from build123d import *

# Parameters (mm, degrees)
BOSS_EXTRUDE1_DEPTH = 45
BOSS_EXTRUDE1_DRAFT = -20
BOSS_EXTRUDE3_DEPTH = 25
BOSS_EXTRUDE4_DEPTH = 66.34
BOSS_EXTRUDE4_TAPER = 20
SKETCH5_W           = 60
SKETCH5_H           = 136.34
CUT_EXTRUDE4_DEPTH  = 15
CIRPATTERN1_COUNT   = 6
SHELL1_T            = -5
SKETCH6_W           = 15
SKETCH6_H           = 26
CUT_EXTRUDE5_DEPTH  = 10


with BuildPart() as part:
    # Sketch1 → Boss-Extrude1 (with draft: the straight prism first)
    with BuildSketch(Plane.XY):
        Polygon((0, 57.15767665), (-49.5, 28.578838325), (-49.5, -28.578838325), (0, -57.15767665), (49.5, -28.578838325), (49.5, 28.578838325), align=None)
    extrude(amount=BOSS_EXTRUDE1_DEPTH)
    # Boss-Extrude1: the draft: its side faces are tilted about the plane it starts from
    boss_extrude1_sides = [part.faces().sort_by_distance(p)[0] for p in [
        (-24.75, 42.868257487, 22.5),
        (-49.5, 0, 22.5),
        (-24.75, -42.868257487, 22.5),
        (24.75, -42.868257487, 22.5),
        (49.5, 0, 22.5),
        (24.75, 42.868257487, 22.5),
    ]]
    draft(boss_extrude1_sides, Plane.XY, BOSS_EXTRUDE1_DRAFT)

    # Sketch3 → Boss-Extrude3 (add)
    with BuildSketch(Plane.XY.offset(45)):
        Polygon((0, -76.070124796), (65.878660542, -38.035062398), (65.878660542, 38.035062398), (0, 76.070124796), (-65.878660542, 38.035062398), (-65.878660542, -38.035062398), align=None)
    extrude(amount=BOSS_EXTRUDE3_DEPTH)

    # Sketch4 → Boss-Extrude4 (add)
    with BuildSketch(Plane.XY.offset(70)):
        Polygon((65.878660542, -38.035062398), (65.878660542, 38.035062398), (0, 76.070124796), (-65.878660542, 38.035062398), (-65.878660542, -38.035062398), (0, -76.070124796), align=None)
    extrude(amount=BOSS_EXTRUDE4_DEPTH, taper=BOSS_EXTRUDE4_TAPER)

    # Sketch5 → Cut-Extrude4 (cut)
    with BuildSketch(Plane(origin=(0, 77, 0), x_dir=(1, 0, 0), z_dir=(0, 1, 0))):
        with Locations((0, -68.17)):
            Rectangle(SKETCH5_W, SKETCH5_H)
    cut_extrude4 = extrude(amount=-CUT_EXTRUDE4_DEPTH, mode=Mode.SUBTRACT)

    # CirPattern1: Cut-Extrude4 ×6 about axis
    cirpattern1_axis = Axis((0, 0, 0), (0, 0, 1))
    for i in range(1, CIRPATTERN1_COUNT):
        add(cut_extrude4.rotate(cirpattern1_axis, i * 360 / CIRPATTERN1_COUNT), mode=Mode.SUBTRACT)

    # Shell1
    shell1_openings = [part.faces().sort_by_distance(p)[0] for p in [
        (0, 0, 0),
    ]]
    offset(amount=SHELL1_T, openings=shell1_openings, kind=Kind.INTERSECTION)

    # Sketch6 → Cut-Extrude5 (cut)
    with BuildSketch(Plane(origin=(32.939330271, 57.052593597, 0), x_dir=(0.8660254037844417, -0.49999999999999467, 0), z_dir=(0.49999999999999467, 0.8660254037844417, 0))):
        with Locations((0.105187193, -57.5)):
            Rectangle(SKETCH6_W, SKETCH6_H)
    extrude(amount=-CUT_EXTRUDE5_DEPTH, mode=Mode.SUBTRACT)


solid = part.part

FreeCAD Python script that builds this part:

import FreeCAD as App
import Part
import Sketcher

V = App.Vector
Q = App.Units.Quantity


def faces_at(feature, points):
    """Names of the faces that lie closest to the given points."""
    faces = feature.Shape.Faces
    near = lambda p: min(range(len(faces)), key=lambda i: faces[i].distToShape(Part.Vertex(*p))[0])
    return sorted({f"Face{near(p) + 1}" for p in points})


def add_polygon(sketch, points):
    """Adds a closed chain of lines whose ends are joined by coincident constraints."""
    first, n = sketch.GeometryCount, len(points)
    for a, b in zip(points, points[1:] + points[:1]):
        sketch.addGeometry(Part.LineSegment(App.Vector(*a, 0), App.Vector(*b, 0)), False)
    for i in range(n):
        sketch.addConstraint(Sketcher.Constraint("Coincident", first + i, 2, first + (i + 1) % n, 1))

doc = App.newDocument("Part")
body = doc.addObject("PartDesign::Body", "Body")

sketch1 = body.newObject("Sketcher::SketchObject", "Sketch")
sketch1.AttachmentSupport = (doc.getObject("XY_Plane"), [""])
sketch1.MapMode = "FlatFace"
add_polygon(sketch1, [(0, 57.157677), (-49.5, 28.578838), (-49.5, -28.578838), (0, -57.157677), (49.5, -28.578838), (49.5, 28.578838)])
sketch1.addConstraint([
    Sketcher.Constraint("Vertical", 1),
    Sketcher.Constraint("Vertical", 4),
    Sketcher.Constraint("Symmetric", 0, 2, 3, 2, -1, 1),
    Sketcher.Constraint("Symmetric", 2, 2, 5, 2, -1, 1),
    Sketcher.Constraint("PointOnObject", 2, 2, -2),
    Sketcher.Constraint("Parallel", 2, 5),
    Sketcher.Constraint("Horizontal", 1, 2, 3, 2),
    Sketcher.Constraint("Angle", 0, Q("-150 deg")),
    Sketcher.Constraint("DistanceX", 1, 2, 3, 2, 99.0),
    Sketcher.Constraint("DistanceY", 1, 2, 1, 1, 57.157677),
])
pad1 = body.newObject("PartDesign::Pad", "Pad")
pad1.Profile = sketch1
pad1.Length = 45
doc.recompute()

draft = body.newObject("PartDesign::Draft", "Draft")
draft.Base = (pad1, faces_at(pad1, [
    (-24.75, 42.868, 22.5),
    (-49.5, 0, 22.5),
    (-24.75, -42.868, 22.5),
    (24.75, -42.868, 22.5),
    (49.5, 0, 22.5),
    (24.75, 42.868, 22.5),
]))
draft.NeutralPlane = (doc.getObject("XY_Plane"), [""])
draft.Angle = 20
draft.Reversed = True

sketch2 = body.newObject("Sketcher::SketchObject", "Sketch001")
sketch2.AttachmentSupport = (doc.getObject("XY_Plane"), [""])
sketch2.MapMode = "FlatFace"
sketch2.AttachmentOffset = App.Placement(V(0, 0, 45), App.Rotation())
add_polygon(sketch2, [(0, -76.070125), (65.878661, -38.035062), (65.878661, 38.035062), (0, 76.070125), (-65.878661, 38.035062), (-65.878661, -38.035062)])
sketch2.addConstraint([
    Sketcher.Constraint("Vertical", 1),
    Sketcher.Constraint("Vertical", 4),
    Sketcher.Constraint("Symmetric", 0, 2, 3, 2, -1, 1),
    Sketcher.Constraint("Symmetric", 2, 2, 5, 2, -1, 1),
    Sketcher.Constraint("PointOnObject", 2, 2, -2),
    Sketcher.Constraint("Parallel", 2, 5),
    Sketcher.Constraint("Horizontal", 1, 2, 3, 2),
    Sketcher.Constraint("Angle", 0, Q("30 deg")),
    Sketcher.Constraint("DistanceY", 1, 1, 1, 2, 76.070125),
    Sketcher.Constraint("DistanceX", -1, 1, 0, 2, 65.878661),
])
pad2 = body.newObject("PartDesign::Pad", "Pad001")
pad2.Profile = sketch2
pad2.Length = 25

sketch3 = body.newObject("Sketcher::SketchObject", "Sketch002")
sketch3.AttachmentSupport = (doc.getObject("XY_Plane"), [""])
sketch3.MapMode = "FlatFace"
sketch3.AttachmentOffset = App.Placement(V(0, 0, 70), App.Rotation())
add_polygon(sketch3, [(65.878661, -38.035062), (65.878661, 38.035062), (0, 76.070125), (-65.878661, 38.035062), (-65.878661, -38.035062), (0, -76.070125)])
sketch3.addConstraint([
    Sketcher.Constraint("Vertical", 0),
    Sketcher.Constraint("Vertical", 3),
    Sketcher.Constraint("Symmetric", 0, 2, 3, 2, -1, 1),
    Sketcher.Constraint("Symmetric", 1, 2, 4, 2, -1, 1),
    Sketcher.Constraint("PointOnObject", 1, 2, -2),
    Sketcher.Constraint("Parallel", 2, 5),
    Sketcher.Constraint("Horizontal", 0, 2, 2, 2),
    Sketcher.Constraint("Angle", 1, Q("150 deg")),
    Sketcher.Constraint("DistanceY", 0, 1, 0, 2, 76.070125),
    Sketcher.Constraint("DistanceX", -1, 1, 0, 2, 65.878661),
])
pad3 = body.newObject("PartDesign::Pad", "Pad002")
pad3.Profile = sketch3
pad3.Length = 66.34
pad3.TaperAngle = -20

sketch4 = body.newObject("Sketcher::SketchObject", "Sketch003")
sketch4.AttachmentSupport = (doc.getObject("XZ_Plane"), [""])
sketch4.MapMode = "FlatFace"
sketch4.AttachmentOffset = App.Placement(V(0, 0, -77), App.Rotation())
add_polygon(sketch4, [(-30, 0), (-30, 136.34), (30, 136.34), (30, 0)])
sketch4.addConstraint([
    Sketcher.Constraint("Vertical", 0),
    Sketcher.Constraint("Horizontal", 1),
    Sketcher.Constraint("Vertical", 2),
    Sketcher.Constraint("Horizontal", 3),
    Sketcher.Constraint("Symmetric", 2, 2, 3, 2, -1, 1),
    Sketcher.Constraint("DistanceX", 1, 1, 1, 2, 60.0),
    Sketcher.Constraint("DistanceY", 0, 1, 0, 2, 136.34),
])
pocket1 = body.newObject("PartDesign::Pocket", "Pocket")
pocket1.Profile = sketch4
pocket1.Length = 15
pocket1.Reversed = True
doc.recompute()

polarpattern = body.newObject("PartDesign::PolarPattern", "PolarPattern")
polarpattern.Originals = [pocket1]
polarpattern.Axis = (doc.getObject("Z_Axis"), [""])
polarpattern.Angle = 360
polarpattern.Occurrences = 6
body.Tip = polarpattern
doc.recompute()

thickness = body.newObject("PartDesign::Thickness", "Thickness")
thickness.Base = (polarpattern, faces_at(polarpattern, [(0, 0, 0)]))
thickness.Value = 5
thickness.Reversed = True
thickness.Join = "Intersection"

sketch5 = body.newObject("Sketcher::SketchObject", "Sketch004")
sketch5.Placement = App.Placement(V(32.93933, 57.052594, 0), App.Rotation(V(0.866025404, -0.5, 0), V(0, 0, -1), V(0.5, 0.866025404, 0), "ZXY"))
add_polygon(sketch5, [(-7.394813, -44.5), (-7.394813, -70.5), (7.605187, -70.5), (7.605187, -44.5)])
sketch5.addConstraint([
    Sketcher.Constraint("Vertical", 0),
    Sketcher.Constraint("Horizontal", 1),
    Sketcher.Constraint("Vertical", 2),
    Sketcher.Constraint("Horizontal", 3),
    Sketcher.Constraint("DistanceX", 1, 1, 1, 2, 15.0),
    Sketcher.Constraint("DistanceY", 0, 2, 0, 1, 26.0),
    Sketcher.Constraint("DistanceY", 0, 2, -1, 1, 70.5),
    Sketcher.Constraint("DistanceX", 0, 2, -1, 1, 7.394813),
])
pocket2 = body.newObject("PartDesign::Pocket", "Pocket001")
pocket2.Profile = sketch5
pocket2.Length = 10

doc.recompute()
